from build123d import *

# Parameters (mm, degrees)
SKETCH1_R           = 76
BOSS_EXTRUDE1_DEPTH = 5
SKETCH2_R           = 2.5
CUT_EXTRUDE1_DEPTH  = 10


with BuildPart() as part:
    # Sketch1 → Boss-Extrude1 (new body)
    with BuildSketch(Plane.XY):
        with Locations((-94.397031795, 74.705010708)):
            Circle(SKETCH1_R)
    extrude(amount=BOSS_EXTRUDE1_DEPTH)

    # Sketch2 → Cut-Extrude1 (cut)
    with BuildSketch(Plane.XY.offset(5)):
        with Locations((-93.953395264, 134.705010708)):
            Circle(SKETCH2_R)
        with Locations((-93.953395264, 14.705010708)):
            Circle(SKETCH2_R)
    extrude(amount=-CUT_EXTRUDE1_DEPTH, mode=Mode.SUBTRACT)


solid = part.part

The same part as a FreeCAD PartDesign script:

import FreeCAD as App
import Part
import Sketcher
from FreeCAD import Vector

doc = App.newDocument("Part")
body = doc.addObject("PartDesign::Body", "Body")

# Sketch on XY plane
sketch1 = body.newObject("Sketcher::SketchObject", "Sketch")
sketch1.AttachmentSupport = (doc.getObject("XY_Plane"), [""])
sketch1.MapMode = "FlatFace"
sketch1.addGeometry(Part.Circle(Vector(-94, 75, 0), Vector(0, 0, 1), 76), False)
sketch1.addConstraint(Sketcher.Constraint("Diameter", 0, 152.0))
sketch1.addConstraint(Sketcher.Constraint("DistanceX", 0, 3, -1, 1, 94.397032))
sketch1.addConstraint(Sketcher.Constraint("DistanceY", -1, 1, 0, 3, 74.705011))
pad1 = body.newObject("PartDesign::Pad", "Pad")
pad1.Profile = sketch1
pad1.Length = 5

# Sketch on XY plane
sketch2 = body.newObject("Sketcher::SketchObject", "Sketch001")
sketch2.AttachmentSupport = (doc.getObject("XY_Plane"), [""])
sketch2.MapMode = "FlatFace"
sketch2.AttachmentOffset = App.Placement(Vector(0, 0, 5), App.Rotation())
sketch2.addGeometry(Part.Circle(Vector(-94, 134.7, 0), Vector(0, 0, 1), 2.5), False)
sketch2.addGeometry(Part.Circle(Vector(-94, 14.7, 0), Vector(0, 0, 1), 2.5), False)
sketch2.addConstraint(Sketcher.Constraint("Equal", 0, 1))
sketch2.addConstraint(Sketcher.Constraint("Vertical", 0, 3, 1, 3))
sketch2.addConstraint(Sketcher.Constraint("Diameter", 0, 5.0))
sketch2.addConstraint(Sketcher.Constraint("DistanceY", 1, 3, 0, 3, 120.0))
sketch2.addConstraint(Sketcher.Constraint("DistanceY", -1, 1, 0, 3, 134.705011))
sketch2.addConstraint(Sketcher.Constraint("DistanceX", 0, 3, -1, 1, 93.953395))
pocket1 = body.newObject("PartDesign::Pocket", "Pocket")
pocket1.Profile = sketch2
pocket1.Length = 10

doc.recompute()
